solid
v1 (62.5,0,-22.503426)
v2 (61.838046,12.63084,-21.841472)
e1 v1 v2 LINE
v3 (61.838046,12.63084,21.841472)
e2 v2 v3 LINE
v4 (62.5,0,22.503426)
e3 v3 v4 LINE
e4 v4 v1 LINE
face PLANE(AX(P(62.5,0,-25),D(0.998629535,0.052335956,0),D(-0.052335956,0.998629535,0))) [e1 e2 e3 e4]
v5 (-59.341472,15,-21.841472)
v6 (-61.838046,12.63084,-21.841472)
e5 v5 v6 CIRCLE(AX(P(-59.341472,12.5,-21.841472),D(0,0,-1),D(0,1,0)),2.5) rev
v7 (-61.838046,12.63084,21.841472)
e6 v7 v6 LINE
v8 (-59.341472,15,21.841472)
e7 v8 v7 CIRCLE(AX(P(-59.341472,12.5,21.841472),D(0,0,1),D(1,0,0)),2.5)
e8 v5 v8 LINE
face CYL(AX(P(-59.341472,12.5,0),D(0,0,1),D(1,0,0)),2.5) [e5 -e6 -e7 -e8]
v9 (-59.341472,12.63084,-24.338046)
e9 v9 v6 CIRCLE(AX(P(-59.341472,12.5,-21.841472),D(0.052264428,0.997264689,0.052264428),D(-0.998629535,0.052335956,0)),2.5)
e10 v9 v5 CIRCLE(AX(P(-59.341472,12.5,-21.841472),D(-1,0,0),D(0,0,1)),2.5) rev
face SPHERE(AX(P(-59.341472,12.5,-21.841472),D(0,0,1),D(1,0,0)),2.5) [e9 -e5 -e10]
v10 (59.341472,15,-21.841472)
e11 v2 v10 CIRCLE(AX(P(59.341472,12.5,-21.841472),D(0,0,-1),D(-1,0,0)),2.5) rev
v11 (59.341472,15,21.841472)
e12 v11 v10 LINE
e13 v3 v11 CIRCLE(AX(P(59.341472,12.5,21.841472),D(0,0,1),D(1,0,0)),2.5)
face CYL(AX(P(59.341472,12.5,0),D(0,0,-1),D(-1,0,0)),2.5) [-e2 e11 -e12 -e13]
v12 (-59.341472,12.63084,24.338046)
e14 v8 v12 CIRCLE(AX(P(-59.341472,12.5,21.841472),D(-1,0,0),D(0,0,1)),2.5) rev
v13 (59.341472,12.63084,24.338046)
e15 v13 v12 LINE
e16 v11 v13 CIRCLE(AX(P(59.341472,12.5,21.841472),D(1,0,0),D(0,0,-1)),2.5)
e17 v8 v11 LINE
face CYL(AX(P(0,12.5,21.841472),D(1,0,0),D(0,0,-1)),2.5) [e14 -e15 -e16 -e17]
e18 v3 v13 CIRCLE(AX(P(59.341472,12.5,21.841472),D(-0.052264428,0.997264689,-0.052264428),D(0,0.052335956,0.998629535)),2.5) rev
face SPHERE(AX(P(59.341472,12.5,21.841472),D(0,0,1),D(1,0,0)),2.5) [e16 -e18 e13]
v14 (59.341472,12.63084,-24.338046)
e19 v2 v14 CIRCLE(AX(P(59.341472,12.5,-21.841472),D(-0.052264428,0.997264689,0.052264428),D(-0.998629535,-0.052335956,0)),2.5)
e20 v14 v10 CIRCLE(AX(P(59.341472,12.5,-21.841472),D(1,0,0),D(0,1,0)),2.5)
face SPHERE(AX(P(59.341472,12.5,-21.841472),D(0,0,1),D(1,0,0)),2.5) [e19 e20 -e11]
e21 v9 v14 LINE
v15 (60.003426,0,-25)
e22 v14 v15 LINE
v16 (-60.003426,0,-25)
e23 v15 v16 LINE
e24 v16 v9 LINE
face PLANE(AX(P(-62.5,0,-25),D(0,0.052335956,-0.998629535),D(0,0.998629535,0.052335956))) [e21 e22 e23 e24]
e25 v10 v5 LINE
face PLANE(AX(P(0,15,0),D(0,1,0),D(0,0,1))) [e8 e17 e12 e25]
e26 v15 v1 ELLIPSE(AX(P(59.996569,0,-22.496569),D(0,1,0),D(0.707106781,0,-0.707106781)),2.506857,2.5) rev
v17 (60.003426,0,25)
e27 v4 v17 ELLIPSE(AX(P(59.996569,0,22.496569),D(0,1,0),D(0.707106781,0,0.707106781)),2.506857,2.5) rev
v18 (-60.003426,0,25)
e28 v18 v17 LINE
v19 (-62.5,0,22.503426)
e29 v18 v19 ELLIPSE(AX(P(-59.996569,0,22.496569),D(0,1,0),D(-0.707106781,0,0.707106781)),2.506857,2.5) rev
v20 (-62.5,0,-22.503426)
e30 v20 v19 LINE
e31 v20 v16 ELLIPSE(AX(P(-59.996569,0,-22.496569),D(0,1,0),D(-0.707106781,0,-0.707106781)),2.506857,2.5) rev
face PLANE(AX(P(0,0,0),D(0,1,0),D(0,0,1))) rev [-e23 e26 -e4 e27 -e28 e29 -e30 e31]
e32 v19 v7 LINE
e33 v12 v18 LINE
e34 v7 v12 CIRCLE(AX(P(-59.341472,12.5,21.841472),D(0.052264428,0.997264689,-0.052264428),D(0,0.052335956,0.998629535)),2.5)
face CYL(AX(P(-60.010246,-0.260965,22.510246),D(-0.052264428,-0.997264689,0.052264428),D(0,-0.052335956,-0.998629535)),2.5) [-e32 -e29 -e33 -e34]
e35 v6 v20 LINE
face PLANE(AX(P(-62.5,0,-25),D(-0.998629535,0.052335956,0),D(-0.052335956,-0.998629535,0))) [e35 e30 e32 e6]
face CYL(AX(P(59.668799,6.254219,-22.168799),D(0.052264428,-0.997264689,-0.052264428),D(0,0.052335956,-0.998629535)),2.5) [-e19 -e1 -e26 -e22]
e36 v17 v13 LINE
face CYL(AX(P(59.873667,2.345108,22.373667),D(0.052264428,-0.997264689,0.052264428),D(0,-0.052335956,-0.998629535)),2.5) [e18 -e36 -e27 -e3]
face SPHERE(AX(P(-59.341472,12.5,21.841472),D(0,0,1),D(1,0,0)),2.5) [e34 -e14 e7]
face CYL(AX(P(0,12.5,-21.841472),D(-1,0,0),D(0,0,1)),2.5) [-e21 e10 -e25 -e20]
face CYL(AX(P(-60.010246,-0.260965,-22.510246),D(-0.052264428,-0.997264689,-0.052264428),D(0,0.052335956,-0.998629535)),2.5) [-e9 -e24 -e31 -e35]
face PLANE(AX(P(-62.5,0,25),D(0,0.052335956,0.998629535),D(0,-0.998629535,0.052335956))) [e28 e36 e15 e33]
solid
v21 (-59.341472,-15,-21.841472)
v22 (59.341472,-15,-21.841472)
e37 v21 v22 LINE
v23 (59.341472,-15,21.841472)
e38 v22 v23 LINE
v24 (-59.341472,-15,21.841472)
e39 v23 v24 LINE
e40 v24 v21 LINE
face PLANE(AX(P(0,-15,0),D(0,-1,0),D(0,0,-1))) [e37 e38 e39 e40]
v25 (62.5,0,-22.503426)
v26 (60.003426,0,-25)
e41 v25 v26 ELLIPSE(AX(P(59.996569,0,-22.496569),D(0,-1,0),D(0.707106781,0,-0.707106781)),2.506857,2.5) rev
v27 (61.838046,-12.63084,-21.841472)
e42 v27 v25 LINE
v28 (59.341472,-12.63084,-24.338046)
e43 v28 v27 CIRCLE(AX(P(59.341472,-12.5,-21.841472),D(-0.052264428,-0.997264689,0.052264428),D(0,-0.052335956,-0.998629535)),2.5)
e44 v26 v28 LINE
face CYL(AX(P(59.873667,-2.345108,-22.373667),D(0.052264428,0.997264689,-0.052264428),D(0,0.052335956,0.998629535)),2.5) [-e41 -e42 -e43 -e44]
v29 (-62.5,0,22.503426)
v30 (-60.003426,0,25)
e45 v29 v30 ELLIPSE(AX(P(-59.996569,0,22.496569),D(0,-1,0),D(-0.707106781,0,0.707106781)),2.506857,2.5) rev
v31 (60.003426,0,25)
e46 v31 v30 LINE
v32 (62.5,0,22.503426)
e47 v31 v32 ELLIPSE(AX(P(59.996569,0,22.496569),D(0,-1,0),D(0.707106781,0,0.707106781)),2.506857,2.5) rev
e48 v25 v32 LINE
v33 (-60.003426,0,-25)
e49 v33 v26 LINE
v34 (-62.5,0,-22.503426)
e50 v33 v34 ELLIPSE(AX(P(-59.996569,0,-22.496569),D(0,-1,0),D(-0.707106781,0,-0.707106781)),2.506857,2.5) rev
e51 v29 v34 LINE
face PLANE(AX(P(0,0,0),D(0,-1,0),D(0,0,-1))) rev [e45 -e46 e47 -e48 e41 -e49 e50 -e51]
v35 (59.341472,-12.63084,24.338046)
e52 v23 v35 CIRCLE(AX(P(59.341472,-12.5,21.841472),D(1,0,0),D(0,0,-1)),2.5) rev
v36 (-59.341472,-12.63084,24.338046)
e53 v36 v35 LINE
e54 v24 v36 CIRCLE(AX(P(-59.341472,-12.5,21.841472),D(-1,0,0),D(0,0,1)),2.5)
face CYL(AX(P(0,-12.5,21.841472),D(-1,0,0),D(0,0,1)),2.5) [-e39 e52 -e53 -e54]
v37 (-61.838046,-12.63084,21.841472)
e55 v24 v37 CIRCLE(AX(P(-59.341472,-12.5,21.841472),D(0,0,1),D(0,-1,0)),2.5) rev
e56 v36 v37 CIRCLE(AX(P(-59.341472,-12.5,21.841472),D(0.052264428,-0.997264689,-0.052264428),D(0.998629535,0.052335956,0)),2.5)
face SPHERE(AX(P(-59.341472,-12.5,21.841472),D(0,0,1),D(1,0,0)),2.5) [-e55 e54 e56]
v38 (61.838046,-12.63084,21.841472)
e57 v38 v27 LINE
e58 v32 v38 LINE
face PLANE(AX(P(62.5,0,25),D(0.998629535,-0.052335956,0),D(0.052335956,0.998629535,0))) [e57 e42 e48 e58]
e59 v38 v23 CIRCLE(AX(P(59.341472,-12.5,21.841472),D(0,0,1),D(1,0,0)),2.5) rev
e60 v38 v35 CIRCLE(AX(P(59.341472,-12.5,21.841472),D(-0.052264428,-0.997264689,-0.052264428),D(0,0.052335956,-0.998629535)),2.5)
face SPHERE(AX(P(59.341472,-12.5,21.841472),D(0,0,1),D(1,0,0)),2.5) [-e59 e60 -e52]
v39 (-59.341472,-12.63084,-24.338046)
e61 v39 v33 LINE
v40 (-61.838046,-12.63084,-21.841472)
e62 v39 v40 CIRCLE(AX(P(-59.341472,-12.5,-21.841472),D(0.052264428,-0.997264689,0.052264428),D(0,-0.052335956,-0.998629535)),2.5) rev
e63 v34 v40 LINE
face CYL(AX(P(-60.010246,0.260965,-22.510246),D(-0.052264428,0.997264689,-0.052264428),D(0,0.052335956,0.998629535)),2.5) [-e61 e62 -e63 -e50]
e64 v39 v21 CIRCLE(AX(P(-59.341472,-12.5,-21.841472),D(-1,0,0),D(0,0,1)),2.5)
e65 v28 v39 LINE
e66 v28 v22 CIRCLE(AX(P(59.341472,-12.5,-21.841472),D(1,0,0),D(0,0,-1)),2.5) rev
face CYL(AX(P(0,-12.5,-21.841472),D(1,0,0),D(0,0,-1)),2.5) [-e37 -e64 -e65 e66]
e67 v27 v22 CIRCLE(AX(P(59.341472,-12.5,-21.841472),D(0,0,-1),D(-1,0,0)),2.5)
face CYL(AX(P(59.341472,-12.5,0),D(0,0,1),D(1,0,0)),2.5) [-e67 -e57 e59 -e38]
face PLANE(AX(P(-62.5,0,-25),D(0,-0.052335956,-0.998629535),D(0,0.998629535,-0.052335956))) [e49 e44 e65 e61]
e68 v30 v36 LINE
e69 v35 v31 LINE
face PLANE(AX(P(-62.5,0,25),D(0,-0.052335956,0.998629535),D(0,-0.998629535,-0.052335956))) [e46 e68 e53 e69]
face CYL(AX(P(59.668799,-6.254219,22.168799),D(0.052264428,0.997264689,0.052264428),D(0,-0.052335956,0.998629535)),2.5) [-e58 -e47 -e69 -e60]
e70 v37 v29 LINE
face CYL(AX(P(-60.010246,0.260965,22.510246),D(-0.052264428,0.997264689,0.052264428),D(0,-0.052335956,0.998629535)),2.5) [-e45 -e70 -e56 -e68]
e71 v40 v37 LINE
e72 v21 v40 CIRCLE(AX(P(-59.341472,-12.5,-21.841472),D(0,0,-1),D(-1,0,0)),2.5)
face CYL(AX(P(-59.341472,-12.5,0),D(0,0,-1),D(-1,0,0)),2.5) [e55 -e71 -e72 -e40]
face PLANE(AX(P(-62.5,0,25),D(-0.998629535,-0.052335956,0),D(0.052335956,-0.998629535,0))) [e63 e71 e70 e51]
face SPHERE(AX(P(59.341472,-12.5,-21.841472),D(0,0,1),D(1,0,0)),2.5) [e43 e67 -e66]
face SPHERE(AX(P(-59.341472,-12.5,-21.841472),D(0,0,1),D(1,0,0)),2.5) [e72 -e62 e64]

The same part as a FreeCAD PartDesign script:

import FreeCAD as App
import Part
import Sketcher
from FreeCAD import Vector


def edges_at(feature, points):
    """Names of the edges that pass closest to the given points."""
    edges = feature.Shape.Edges
    near = lambda p: min(range(len(edges)), key=lambda i: edges[i].distToShape(Part.Vertex(*p))[0])
    return sorted({f"Edge{near(p) + 1}" for p in points})


def add_polygon(sketch, points):
    """Adds a closed chain of lines whose ends are joined by coincident constraints."""
    first, n = sketch.GeometryCount, len(points)
    for a, b in zip(points, points[1:] + points[:1]):
        sketch.addGeometry(Part.LineSegment(App.Vector(*a, 0), App.Vector(*b, 0)), False)
    for i in range(n):
        sketch.addConstraint(Sketcher.Constraint("Coincident", first + i, 2, first + (i + 1) % n, 1))

doc = App.newDocument("Part")
body = doc.addObject("PartDesign::Body", "Body")

# Sketch on XZ plane
sketch1 = body.newObject("Sketcher::SketchObject", "Sketch")
sketch1.AttachmentSupport = (doc.getObject("XZ_Plane"), [""])
sketch1.MapMode = "FlatFace"
add_polygon(sketch1, [(-62, -25), (-62, 25), (62, 25), (62, -25)])  # lines 0-3
sketch1.addConstraint([
    Sketcher.Constraint("Vertical", 0),
    Sketcher.Constraint("Horizontal", 1),
    Sketcher.Constraint("Vertical", 2),
    Sketcher.Constraint("Horizontal", 3),
    Sketcher.Constraint("Symmetric", 0, 2, 2, 2, -1, 1),
    Sketcher.Constraint("DistanceX", 1, 1, 1, 2, 125.0),
    Sketcher.Constraint("DistanceY", 0, 1, 0, 2, 50.0),
])
pad1 = body.newObject("PartDesign::Pad", "Pad")
pad1.Profile = sketch1
pad1.Length = 15
pad1.Reversed = True
pad1.TaperAngle = -3
doc.recompute()

fillet = body.newObject("PartDesign::Fillet", "Fillet")
fillet.Base = (pad1, edges_at(pad1, [
    (-61.714, 15, 0),
    (0, 15, 24.214),
    (61.714, 15, 0),
    (0, 15, -24.214),
    (62.107, 7.5, 24.607),
    (-62.107, 7.5, 24.607),
    (-62.107, 7.5, -24.607),
    (62.107, 7.5, -24.607),
]))
fillet.Radius = 2.5
body2 = doc.addObject("PartDesign::Body", "Body001")

# Sketch on XZ plane
sketch2 = body2.newObject("Sketcher::SketchObject", "Sketch001")
sketch2.AttachmentSupport = (doc.getObject("XZ_Plane001"), [""])
sketch2.MapMode = "FlatFace"
add_polygon(sketch2, [(-62, 25), (-62, -25), (62, -25), (62, 25)])  # lines 0-3
sketch2.addConstraint([
    Sketcher.Constraint("Vertical", 0),
    Sketcher.Constraint("Horizontal", 1),
    Sketcher.Constraint("Vertical", 2),
    Sketcher.Constraint("Horizontal", 3),
    Sketcher.Constraint("Symmetric", 0, 2, 2, 2, -1, 1),
    Sketcher.Constraint("DistanceX", 1, 1, 1, 2, 125.0),
    Sketcher.Constraint("DistanceY", 0, 2, 0, 1, 50.0),
])
pad2 = body2.newObject("PartDesign::Pad", "Pad001")
pad2.Profile = sketch2
pad2.Length = 15
pad2.TaperAngle = -3
doc.recompute()

fillet2 = body2.newObject("PartDesign::Fillet", "Fillet001")
fillet2.Base = (pad2, edges_at(pad2, [
    (-61.714, -15, 0),
    (0, -15, -24.214),
    (61.714, -15, 0),
    (0, -15, 24.214),
    (62.107, -7.5, -24.607),
    (-62.107, -7.5, -24.607),
    (-62.107, -7.5, 24.607),
    (62.107, -7.5, 24.607),
]))
fillet2.Radius = 2.5

doc.recompute()
